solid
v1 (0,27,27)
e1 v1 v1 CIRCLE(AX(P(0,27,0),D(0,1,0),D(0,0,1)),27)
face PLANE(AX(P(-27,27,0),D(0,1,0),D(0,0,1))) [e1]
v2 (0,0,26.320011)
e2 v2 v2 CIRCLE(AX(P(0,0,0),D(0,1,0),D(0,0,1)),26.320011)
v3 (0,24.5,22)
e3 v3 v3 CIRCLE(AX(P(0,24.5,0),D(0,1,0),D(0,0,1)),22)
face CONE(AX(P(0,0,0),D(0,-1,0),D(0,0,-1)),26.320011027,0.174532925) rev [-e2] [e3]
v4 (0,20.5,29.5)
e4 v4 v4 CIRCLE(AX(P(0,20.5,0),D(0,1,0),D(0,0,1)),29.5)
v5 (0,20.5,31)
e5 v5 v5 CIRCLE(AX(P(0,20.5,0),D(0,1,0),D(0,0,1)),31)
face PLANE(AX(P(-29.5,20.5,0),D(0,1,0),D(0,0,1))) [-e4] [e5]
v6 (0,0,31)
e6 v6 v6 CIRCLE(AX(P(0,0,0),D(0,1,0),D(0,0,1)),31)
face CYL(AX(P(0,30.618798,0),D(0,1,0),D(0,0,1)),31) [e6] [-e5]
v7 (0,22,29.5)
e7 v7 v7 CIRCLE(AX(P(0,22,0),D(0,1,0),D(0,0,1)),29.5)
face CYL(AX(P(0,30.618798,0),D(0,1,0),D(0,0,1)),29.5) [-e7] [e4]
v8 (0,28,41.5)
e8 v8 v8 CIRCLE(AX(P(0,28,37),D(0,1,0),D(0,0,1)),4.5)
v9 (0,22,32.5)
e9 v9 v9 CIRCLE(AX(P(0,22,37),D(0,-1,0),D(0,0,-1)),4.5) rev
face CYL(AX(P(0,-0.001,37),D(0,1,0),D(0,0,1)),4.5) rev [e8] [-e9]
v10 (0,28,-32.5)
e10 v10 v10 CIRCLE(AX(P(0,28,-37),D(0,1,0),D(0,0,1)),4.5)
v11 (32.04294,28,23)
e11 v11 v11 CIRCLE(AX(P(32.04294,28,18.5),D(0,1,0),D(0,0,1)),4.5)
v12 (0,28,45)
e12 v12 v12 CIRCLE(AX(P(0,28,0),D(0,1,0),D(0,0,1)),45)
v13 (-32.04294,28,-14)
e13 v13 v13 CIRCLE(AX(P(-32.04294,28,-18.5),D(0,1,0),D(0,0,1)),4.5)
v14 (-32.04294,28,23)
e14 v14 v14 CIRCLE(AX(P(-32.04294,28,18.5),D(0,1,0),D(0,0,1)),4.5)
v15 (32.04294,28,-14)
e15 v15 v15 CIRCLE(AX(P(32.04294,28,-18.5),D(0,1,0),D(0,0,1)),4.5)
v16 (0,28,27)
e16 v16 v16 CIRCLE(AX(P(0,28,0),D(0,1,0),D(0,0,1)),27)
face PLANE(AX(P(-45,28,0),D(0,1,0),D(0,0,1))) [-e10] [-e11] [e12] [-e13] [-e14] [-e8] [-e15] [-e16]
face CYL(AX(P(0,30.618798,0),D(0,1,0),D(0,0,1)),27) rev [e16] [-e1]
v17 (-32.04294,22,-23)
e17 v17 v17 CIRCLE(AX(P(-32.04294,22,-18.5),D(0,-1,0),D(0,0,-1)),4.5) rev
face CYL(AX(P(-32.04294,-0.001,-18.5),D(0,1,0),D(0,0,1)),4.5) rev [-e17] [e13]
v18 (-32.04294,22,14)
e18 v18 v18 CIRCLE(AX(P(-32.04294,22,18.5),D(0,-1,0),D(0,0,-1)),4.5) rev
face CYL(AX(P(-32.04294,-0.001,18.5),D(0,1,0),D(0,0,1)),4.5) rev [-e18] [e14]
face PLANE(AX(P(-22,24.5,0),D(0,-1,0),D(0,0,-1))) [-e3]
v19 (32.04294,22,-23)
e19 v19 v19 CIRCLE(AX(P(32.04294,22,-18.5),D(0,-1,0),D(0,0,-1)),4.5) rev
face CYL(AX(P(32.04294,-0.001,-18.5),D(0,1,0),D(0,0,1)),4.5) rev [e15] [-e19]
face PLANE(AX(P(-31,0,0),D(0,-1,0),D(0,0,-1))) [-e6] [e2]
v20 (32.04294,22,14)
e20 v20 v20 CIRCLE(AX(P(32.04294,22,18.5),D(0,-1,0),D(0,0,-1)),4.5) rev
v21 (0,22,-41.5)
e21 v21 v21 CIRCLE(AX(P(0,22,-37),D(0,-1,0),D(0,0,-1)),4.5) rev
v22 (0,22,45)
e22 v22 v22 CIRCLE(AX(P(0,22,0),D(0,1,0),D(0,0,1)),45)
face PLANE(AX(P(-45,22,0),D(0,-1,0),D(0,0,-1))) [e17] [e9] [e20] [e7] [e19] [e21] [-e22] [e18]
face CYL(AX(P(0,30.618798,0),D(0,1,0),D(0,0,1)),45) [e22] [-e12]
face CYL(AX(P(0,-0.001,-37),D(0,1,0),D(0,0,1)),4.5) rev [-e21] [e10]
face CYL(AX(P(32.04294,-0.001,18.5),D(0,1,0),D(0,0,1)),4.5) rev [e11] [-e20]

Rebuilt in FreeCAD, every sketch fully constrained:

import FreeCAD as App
import Part
import Sketcher
from FreeCAD import Vector
Q = App.Units.Quantity


def add_polygon(sketch, points):
    """Adds a closed chain of lines whose ends are joined by coincident constraints."""
    first, n = sketch.GeometryCount, len(points)
    for a, b in zip(points, points[1:] + points[:1]):
        sketch.addGeometry(Part.LineSegment(App.Vector(*a, 0), App.Vector(*b, 0)), False)
    for i in range(n):
        sketch.addConstraint(Sketcher.Constraint("Coincident", first + i, 2, first + (i + 1) % n, 1))

doc = App.newDocument("Part")
params = doc.addObject("Spreadsheet::Sheet", "Params")
for row, (alias, value) in enumerate([
    ("sketch1_width", "22 mm"),
    ("sketch1_width2", "27 mm"),
    ("sketch1_width3", "18 mm"),
    ("sketch1_height", "6 mm"),
    ("sketch1_height2", "1 mm"),
    ("revolution_angle", "360 deg"),
    ("sketch2_diameter", "9 mm"),
    ("sketch3_diameter", "9 mm"),
    ("sketch4_diameter", "9 mm"),
    ("sketch5_diameter", "9 mm"),
    ("sketch6_diameter", "9 mm"),
    ("sketch7_diameter", "9 mm"),
], start=1):
    params.set(f"A{row}", alias)
    params.set(f"B{row}", "=" + value)
    params.setAlias(f"B{row}", alias)

body = doc.addObject("PartDesign::Body", "Body")

# Sketch on XY plane
sketch1 = body.newObject("Sketcher::SketchObject", "Sketch")
sketch1.AttachmentSupport = (doc.getObject("XY_Plane"), [""])
sketch1.MapMode = "FlatFace"
add_polygon(sketch1, [(-45, 28), (-45, 22), (-29.5, 22), (-29.5, 20.5), (-31, 20.5), (-31, 0), (-26.3, 0), (-22, 24.5), (0, 24.5), (0, 27), (-27, 27), (-27, 28)])  # lines 0-11
sketch1.addConstraint([
    Sketcher.Constraint("Vertical", 0),
    Sketcher.Constraint("Horizontal", 1),
    Sketcher.Constraint("Vertical", 2),
    Sketcher.Constraint("Horizontal", 3),
    Sketcher.Constraint("Vertical", 4),
    Sketcher.Constraint("Horizontal", 5),
    Sketcher.Constraint("Horizontal", 7),
    Sketcher.Constraint("Vertical", 8),
    Sketcher.Constraint("Horizontal", 9),
    Sketcher.Constraint("Vertical", 10),
    Sketcher.Constraint("Horizontal", 11),
    Sketcher.Constraint("PointOnObject", 4, 2, -1),
    Sketcher.Constraint("PointOnObject", 7, 2, -2),
    Sketcher.Constraint("Equal", 3, 2),
    Sketcher.Constraint("DistanceX", 7, 1, 7, 2, 22.0),
    Sketcher.Constraint("DistanceX", 9, 2, 9, 1, 27.0),
    Sketcher.Constraint("DistanceX", 11, 2, 11, 1, 18.0),
    Sketcher.Constraint("DistanceY", 0, 2, 0, 1, 6.0),
    Sketcher.Constraint("DistanceY", 10, 1, 10, 2, 1.0),
    Sketcher.Constraint("Angle", 6, Q("80 deg")),
    Sketcher.Constraint("DistanceX", 1, 1, 1, 2, 15.5),
    Sketcher.Constraint("DistanceX", 3, 2, 3, 1, 1.5),
    Sketcher.Constraint("DistanceY", 4, 2, 4, 1, 20.5),
    Sketcher.Constraint("DistanceY", 8, 1, 8, 2, 2.5),
])
sketch1.setExpression("Constraints[26]", "Params.sketch1_width")
sketch1.setExpression("Constraints[27]", "Params.sketch1_width2")
sketch1.setExpression("Constraints[28]", "Params.sketch1_width3")
sketch1.setExpression("Constraints[29]", "Params.sketch1_height")
sketch1.setExpression("Constraints[30]", "Params.sketch1_height2")
revolution = body.newObject("PartDesign::Revolution", "Revolution")
revolution.Profile = sketch1
revolution.ReferenceAxis = (sketch1, ["V_Axis"])
revolution.setExpression("Angle", "Params.revolution_angle")

# Sketch on XZ plane
sketch2 = body.newObject("Sketcher::SketchObject", "Sketch001")
sketch2.AttachmentSupport = (doc.getObject("XZ_Plane"), [""])
sketch2.MapMode = "FlatFace"
sketch2.AttachmentOffset = App.Placement(Vector(0, 0, -28), App.Rotation())
sketch2.addGeometry(Part.Circle(Vector(0, -37, 0), Vector(0, 0, 1), 4.5), False)
sketch2.addConstraint([
    Sketcher.Constraint("PointOnObject", 0, 3, -2),
    Sketcher.Constraint("Diameter", 0, 9.0),
    Sketcher.Constraint("DistanceY", 0, 3, -1, 1, 37.0),
])
sketch2.setExpression("Constraints[1]", "Params.sketch2_diameter")
pocket1 = body.newObject("PartDesign::Pocket", "Pocket")
pocket1.Profile = sketch2
pocket1.Type = "UpToFirst"
pocket1.Reversed = True

# Sketch on XZ plane
sketch3 = body.newObject("Sketcher::SketchObject", "Sketch002")
sketch3.AttachmentSupport = (doc.getObject("XZ_Plane"), [""])
sketch3.MapMode = "FlatFace"
sketch3.AttachmentOffset = App.Placement(Vector(0, 0, -28), App.Rotation())
sketch3.addGeometry(Part.Circle(Vector(32, -18.5, 0), Vector(0, 0, 1), 4.5), False)
sketch3.addConstraint([
    Sketcher.Constraint("Diameter", 0, 9.0),
    Sketcher.Constraint("DistanceY", 0, 3, -1, 1, 18.5),
    Sketcher.Constraint("DistanceX", -1, 1, 0, 3, 32.04294),
])
sketch3.setExpression("Constraints[0]", "Params.sketch3_diameter")
pocket2 = body.newObject("PartDesign::Pocket", "Pocket001")
pocket2.Profile = sketch3
pocket2.Type = "UpToFirst"
pocket2.Reversed = True

# Sketch on XZ plane
sketch4 = body.newObject("Sketcher::SketchObject", "Sketch003")
sketch4.AttachmentSupport = (doc.getObject("XZ_Plane"), [""])
sketch4.MapMode = "FlatFace"
sketch4.AttachmentOffset = App.Placement(Vector(0, 0, -28), App.Rotation())
sketch4.addGeometry(Part.Circle(Vector(32, 18.5, 0), Vector(0, 0, 1), 4.5), False)
sketch4.addConstraint([
    Sketcher.Constraint("Diameter", 0, 9.0),
    Sketcher.Constraint("DistanceY", -1, 1, 0, 3, 18.5),
    Sketcher.Constraint("DistanceX", -1, 1, 0, 3, 32.04294),
])
sketch4.setExpression("Constraints[0]", "Params.sketch4_diameter")
pocket3 = body.newObject("PartDesign::Pocket", "Pocket002")
pocket3.Profile = sketch4
pocket3.Type = "UpToFirst"
pocket3.Reversed = True

# Sketch on XZ plane
sketch5 = body.newObject("Sketcher::SketchObject", "Sketch004")
sketch5.AttachmentSupport = (doc.getObject("XZ_Plane"), [""])
sketch5.MapMode = "FlatFace"
sketch5.AttachmentOffset = App.Placement(Vector(0, 0, -28), App.Rotation())
sketch5.addGeometry(Part.Circle(Vector(0, 37, 0), Vector(0, 0, 1), 4.5), False)
sketch5.addConstraint([
    Sketcher.Constraint("PointOnObject", 0, 3, -2),
    Sketcher.Constraint("Diameter", 0, 9.0),
    Sketcher.Constraint("DistanceY", -1, 1, 0, 3, 37.0),
])
sketch5.setExpression("Constraints[1]", "Params.sketch5_diameter")
pocket4 = body.newObject("PartDesign::Pocket", "Pocket003")
pocket4.Profile = sketch5
pocket4.Type = "UpToFirst"
pocket4.Reversed = True

# Sketch on XZ plane
sketch6 = body.newObject("Sketcher::SketchObject", "Sketch005")
sketch6.AttachmentSupport = (doc.getObject("XZ_Plane"), [""])
sketch6.MapMode = "FlatFace"
sketch6.AttachmentOffset = App.Placement(Vector(0, 0, -28), App.Rotation())
sketch6.addGeometry(Part.Circle(Vector(-32, 18.5, 0), Vector(0, 0, 1), 4.5), False)
sketch6.addConstraint([
    Sketcher.Constraint("Diameter", 0, 9.0),
    Sketcher.Constraint("DistanceY", -1, 1, 0, 3, 18.5),
    Sketcher.Constraint("DistanceX", 0, 3, -1, 1, 32.04294),
])
sketch6.setExpression("Constraints[0]", "Params.sketch6_diameter")
pocket5 = body.newObject("PartDesign::Pocket", "Pocket004")
pocket5.Profile = sketch6
pocket5.Type = "UpToFirst"
pocket5.Reversed = True

# Sketch on XZ plane
sketch7 = body.newObject("Sketcher::SketchObject", "Sketch006")
sketch7.AttachmentSupport = (doc.getObject("XZ_Plane"), [""])
sketch7.MapMode = "FlatFace"
sketch7.AttachmentOffset = App.Placement(Vector(0, 0, -28), App.Rotation())
sketch7.addGeometry(Part.Circle(Vector(-32, -18.5, 0), Vector(0, 0, 1), 4.5), False)
sketch7.addConstraint([
    Sketcher.Constraint("Diameter", 0, 9.0),
    Sketcher.Constraint("DistanceY", 0, 3, -1, 1, 18.5),
    Sketcher.Constraint("DistanceX", 0, 3, -1, 1, 32.04294),
])
sketch7.setExpression("Constraints[0]", "Params.sketch7_diameter")
pocket6 = body.newObject("PartDesign::Pocket", "Pocket005")
pocket6.Profile = sketch7
pocket6.Type = "UpToFirst"
pocket6.Reversed = True

doc.recompute()
